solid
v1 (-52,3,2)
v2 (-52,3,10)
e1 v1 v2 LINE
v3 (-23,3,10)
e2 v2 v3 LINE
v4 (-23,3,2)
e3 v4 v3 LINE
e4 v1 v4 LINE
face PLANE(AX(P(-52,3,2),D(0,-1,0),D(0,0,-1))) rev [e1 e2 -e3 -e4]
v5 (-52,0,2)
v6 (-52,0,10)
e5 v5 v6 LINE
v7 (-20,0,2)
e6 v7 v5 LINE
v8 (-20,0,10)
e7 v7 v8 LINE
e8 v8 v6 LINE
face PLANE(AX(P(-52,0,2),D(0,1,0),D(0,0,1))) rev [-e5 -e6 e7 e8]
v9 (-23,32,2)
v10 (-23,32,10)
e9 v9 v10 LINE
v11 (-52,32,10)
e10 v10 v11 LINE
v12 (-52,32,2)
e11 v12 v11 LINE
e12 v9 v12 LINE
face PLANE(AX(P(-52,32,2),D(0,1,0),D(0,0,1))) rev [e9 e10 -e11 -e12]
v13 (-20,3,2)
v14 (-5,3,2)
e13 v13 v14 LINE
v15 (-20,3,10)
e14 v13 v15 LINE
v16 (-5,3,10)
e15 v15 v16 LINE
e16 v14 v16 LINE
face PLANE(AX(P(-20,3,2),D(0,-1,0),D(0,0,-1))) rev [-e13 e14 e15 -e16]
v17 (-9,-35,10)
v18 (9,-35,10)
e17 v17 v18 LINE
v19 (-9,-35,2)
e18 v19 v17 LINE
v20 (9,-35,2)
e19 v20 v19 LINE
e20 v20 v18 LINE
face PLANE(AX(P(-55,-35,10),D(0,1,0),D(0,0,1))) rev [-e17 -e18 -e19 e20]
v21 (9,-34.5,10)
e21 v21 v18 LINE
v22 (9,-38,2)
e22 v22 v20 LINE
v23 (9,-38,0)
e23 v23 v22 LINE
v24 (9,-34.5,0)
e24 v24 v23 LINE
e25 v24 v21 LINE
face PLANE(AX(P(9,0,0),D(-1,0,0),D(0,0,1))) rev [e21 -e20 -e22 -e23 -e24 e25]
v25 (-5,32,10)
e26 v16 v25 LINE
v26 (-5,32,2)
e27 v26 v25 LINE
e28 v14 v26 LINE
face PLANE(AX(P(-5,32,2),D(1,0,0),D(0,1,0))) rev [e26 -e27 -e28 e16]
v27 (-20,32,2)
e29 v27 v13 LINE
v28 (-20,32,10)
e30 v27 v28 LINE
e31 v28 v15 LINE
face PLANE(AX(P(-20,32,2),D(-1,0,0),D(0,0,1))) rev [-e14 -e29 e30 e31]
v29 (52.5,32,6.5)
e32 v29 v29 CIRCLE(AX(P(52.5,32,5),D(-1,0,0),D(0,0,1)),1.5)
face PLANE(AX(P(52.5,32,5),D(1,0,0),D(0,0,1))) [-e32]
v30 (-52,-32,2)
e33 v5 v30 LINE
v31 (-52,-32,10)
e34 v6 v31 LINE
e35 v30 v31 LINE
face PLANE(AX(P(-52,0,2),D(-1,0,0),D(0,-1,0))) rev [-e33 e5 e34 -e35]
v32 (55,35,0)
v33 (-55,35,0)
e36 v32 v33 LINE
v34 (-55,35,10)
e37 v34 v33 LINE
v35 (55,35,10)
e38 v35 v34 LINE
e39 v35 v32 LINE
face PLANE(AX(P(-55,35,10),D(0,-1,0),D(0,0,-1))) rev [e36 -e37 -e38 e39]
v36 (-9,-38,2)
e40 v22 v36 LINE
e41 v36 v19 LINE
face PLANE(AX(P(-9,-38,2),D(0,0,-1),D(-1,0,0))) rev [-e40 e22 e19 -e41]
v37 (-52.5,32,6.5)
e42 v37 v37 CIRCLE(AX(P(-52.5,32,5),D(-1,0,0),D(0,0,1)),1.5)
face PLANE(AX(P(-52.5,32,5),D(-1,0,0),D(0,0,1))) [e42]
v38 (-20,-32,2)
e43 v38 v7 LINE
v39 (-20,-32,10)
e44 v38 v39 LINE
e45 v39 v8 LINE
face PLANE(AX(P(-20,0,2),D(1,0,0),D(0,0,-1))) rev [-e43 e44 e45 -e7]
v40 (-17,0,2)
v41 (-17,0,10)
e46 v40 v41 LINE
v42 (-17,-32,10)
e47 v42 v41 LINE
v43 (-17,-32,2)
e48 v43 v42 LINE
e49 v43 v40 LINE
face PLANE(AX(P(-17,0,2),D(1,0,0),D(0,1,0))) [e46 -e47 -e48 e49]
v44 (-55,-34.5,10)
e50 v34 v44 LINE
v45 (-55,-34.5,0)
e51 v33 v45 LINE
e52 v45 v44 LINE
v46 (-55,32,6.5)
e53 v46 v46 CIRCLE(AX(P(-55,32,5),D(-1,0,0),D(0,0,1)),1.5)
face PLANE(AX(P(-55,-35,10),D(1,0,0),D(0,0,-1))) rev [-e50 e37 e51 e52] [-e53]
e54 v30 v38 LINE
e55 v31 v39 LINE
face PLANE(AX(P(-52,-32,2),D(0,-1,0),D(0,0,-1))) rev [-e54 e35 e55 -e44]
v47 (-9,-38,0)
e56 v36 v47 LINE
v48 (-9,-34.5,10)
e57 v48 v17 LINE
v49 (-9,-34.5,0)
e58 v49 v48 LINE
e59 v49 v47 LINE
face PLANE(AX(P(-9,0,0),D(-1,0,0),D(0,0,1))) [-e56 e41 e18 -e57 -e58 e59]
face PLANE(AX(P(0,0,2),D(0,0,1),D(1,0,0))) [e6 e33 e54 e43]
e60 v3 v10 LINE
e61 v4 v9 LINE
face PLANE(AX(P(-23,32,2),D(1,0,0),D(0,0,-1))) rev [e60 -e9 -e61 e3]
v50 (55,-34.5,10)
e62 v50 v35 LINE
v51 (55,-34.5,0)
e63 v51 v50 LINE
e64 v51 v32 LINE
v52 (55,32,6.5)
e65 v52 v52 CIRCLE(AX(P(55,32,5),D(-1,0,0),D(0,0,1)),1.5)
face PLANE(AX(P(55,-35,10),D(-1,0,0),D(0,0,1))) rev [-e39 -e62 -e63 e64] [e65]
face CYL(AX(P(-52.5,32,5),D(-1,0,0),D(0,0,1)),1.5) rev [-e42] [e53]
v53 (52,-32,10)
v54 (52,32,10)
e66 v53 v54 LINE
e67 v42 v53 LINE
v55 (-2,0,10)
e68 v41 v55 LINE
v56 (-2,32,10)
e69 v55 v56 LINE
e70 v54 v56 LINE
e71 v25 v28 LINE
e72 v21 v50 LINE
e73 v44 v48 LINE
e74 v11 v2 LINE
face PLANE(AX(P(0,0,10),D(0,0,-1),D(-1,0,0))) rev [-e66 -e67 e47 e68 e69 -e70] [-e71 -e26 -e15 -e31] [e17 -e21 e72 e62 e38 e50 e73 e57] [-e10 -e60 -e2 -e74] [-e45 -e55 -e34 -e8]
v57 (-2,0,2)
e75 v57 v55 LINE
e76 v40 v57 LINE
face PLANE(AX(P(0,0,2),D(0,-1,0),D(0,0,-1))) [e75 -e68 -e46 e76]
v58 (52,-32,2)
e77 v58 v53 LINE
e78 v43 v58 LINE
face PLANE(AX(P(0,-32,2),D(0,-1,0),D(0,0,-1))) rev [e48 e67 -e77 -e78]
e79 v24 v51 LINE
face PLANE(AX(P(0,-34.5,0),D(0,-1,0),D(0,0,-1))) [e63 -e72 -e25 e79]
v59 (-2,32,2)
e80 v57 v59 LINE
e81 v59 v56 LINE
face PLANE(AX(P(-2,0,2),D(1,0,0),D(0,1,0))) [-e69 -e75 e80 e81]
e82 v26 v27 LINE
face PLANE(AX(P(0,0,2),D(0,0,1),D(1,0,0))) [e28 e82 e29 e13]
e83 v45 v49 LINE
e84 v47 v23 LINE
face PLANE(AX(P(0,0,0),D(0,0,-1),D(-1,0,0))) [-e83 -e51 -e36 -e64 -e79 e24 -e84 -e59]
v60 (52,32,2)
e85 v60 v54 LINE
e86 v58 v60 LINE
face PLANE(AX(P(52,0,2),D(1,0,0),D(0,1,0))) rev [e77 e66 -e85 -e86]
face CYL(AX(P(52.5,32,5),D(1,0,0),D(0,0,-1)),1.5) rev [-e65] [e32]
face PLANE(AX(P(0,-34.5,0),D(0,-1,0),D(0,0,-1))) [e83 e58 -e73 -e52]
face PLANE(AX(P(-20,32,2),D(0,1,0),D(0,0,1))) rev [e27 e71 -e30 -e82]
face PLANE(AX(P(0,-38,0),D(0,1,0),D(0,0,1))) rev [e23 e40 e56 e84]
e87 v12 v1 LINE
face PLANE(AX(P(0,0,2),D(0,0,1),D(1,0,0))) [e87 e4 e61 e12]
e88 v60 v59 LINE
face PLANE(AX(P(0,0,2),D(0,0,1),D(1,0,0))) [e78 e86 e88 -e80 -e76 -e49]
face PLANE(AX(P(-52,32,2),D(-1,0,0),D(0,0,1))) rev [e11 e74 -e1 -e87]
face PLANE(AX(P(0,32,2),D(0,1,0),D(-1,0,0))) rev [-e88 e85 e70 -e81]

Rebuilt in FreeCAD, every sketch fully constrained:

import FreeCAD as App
import Part
import Sketcher

V = App.Vector
Q = App.Units.Quantity


def add_polygon(sketch, points):
    """Adds a closed chain of lines whose ends are joined by coincident constraints."""
    first, n = sketch.GeometryCount, len(points)
    for a, b in zip(points, points[1:] + points[:1]):
        sketch.addGeometry(Part.LineSegment(App.Vector(*a, 0), App.Vector(*b, 0)), False)
    for i in range(n):
        sketch.addConstraint(Sketcher.Constraint("Coincident", first + i, 2, first + (i + 1) % n, 1))

doc = App.newDocument("Part")
body = doc.addObject("PartDesign::Body", "Body")

# Sketch on XY plane
sketch1 = doc.addObject("Sketcher::SketchObject", "Sketch")
body.addObject(sketch1)
sketch1.AttachmentSupport = (doc.XY_Plane, [""])
sketch1.MapMode = "FlatFace"
add_polygon(sketch1, [(-55, 35), (-55, -35), (55, -35), (55, 35)])  # lines 0-3
sketch1.addConstraint([
    Sketcher.Constraint("Vertical", 0),
    Sketcher.Constraint("Horizontal", 1),
    Sketcher.Constraint("Vertical", 2),
    Sketcher.Constraint("Horizontal", 3),
    Sketcher.Constraint("Symmetric", 0, 2, 2, 2, -1, 1),
    Sketcher.Constraint("DistanceX", 1, 1, 1, 2, Q("110 mm")),
    Sketcher.Constraint("DistanceY", 0, 2, 0, 1, Q("70 mm")),
])
pad1 = doc.addObject("PartDesign::Pad", "Pad")
body.addObject(pad1)
pad1.Profile = sketch1
pad1.Length = 10

# Sketch on XY plane
sketch2 = doc.addObject("Sketcher::SketchObject", "Sketch001")
body.addObject(sketch2)
sketch2.AttachmentSupport = (doc.XY_Plane, [""])
sketch2.MapMode = "FlatFace"
sketch2.AttachmentOffset = App.Placement(V(0, 0, 10), App.Rotation())
add_polygon(sketch2, [(-52, 32), (-52, 3), (-23, 3), (-23, 32)])  # lines 0-3
add_polygon(sketch2, [(-52, 0), (-52, -32), (-20, -32), (-20, 0)])  # lines 4-7
add_polygon(sketch2, [(-20, 32), (-20, 3), (-5, 3), (-5, 32)])  # lines 8-11
sketch2.addConstraint([
    Sketcher.Constraint("Vertical", 0),
    Sketcher.Constraint("Horizontal", 1),
    Sketcher.Constraint("Vertical", 2),
    Sketcher.Constraint("Horizontal", 3),
    Sketcher.Constraint("Vertical", 4),
    Sketcher.Constraint("Horizontal", 5),
    Sketcher.Constraint("Vertical", 6),
    Sketcher.Constraint("Horizontal", 7),
    Sketcher.Constraint("Vertical", 8),
    Sketcher.Constraint("Horizontal", 9),
    Sketcher.Constraint("Vertical", 10),
    Sketcher.Constraint("Horizontal", 11),
    Sketcher.Constraint("Symmetric", 3, 2, 4, 2, -1),
    Sketcher.Constraint("Symmetric", 5, 2, 11, 2, -1),
    Sketcher.Constraint("PointOnObject", 6, 2, -1),
    Sketcher.Constraint("Horizontal", 1, 2, 8, 2),
    Sketcher.Constraint("Equal", 3, 0),
    Sketcher.Constraint("Equal", 7, 4),
    Sketcher.Constraint("DistanceX", 1, 1, 1, 2, Q("29 mm")),
    Sketcher.Constraint("DistanceX", 5, 1, 5, 2, Q("32 mm")),
    Sketcher.Constraint("DistanceX", 9, 1, 9, 2, Q("15 mm")),
    Sketcher.Constraint("DistanceX", 0, 2, -1, 1, Q("52 mm")),
])
pocket1 = doc.addObject("PartDesign::Pocket", "Pocket")
body.addObject(pocket1)
pocket1.Profile = sketch2
pocket1.Length = 8

# Sketch on XY plane
sketch3 = doc.addObject("Sketcher::SketchObject", "Sketch002")
body.addObject(sketch3)
sketch3.AttachmentSupport = (doc.XY_Plane, [""])
sketch3.MapMode = "FlatFace"
sketch3.AttachmentOffset = App.Placement(V(0, 0, 10), App.Rotation())
add_polygon(sketch3, [(-17, 0), (-17, -32), (52, -32), (52, 32), (-2, 32), (-2, 0)])  # lines 0-5
sketch3.addConstraint([
    Sketcher.Constraint("Vertical", 0),
    Sketcher.Constraint("Horizontal", 1),
    Sketcher.Constraint("Vertical", 2),
    Sketcher.Constraint("Horizontal", 3),
    Sketcher.Constraint("Vertical", 4),
    Sketcher.Constraint("Horizontal", 5),
    Sketcher.Constraint("PointOnObject", 4, 2, -1),
    Sketcher.Constraint("Equal", 0, 4),
    Sketcher.Constraint("DistanceX", 1, 1, 1, 2, Q("69 mm")),
    Sketcher.Constraint("DistanceX", 3, 2, 3, 1, Q("54 mm")),
    Sketcher.Constraint("DistanceY", 0, 2, 0, 1, Q("32 mm")),
    Sketcher.Constraint("DistanceX", 0, 2, -1, 1, Q("17 mm")),
])
pocket2 = doc.addObject("PartDesign::Pocket", "Pocket001")
body.addObject(pocket2)
pocket2.Profile = sketch3
pocket2.Length = 8

# Sketch on YZ plane
sketch4 = doc.addObject("Sketcher::SketchObject", "Sketch003")
body.addObject(sketch4)
sketch4.AttachmentSupport = (doc.YZ_Plane, [""])
sketch4.MapMode = "FlatFace"
sketch4.AttachmentOffset = App.Placement(V(0, 0, -55), App.Rotation())
sketch4.addGeometry(Part.Circle(V(32, 5, 0), V(0, 0, 1), 1.5), False)
sketch4.addConstraint([
    Sketcher.Constraint("Diameter", 0, Q("3 mm")),
    Sketcher.Constraint("DistanceX", -1, 1, 0, 3, Q("32 mm")),
    Sketcher.Constraint("DistanceY", -1, 1, 0, 3, Q("5 mm")),
])
pocket3 = doc.addObject("PartDesign::Pocket", "Pocket002")
body.addObject(pocket3)
pocket3.Profile = sketch4
pocket3.Length = 2.5
pocket3.Reversed = True
doc.recompute()

mirrored = doc.addObject("PartDesign::Mirrored", "Mirrored")
body.addObject(mirrored)
mirrored.Originals = [pocket3]
mirrored.MirrorPlane = (doc.YZ_Plane, [""])
body.Tip = mirrored

# Sketch on XY plane
sketch5 = doc.addObject("Sketcher::SketchObject", "Sketch004")
body.addObject(sketch5)
sketch5.AttachmentSupport = (doc.XY_Plane, [""])
sketch5.MapMode = "FlatFace"
sketch5.AttachmentOffset = App.Placement(V(0, 0, 10), App.Rotation())
add_polygon(sketch5, [(-55, -34.5), (-55, -35), (-9, -35), (-9, -34.5)])  # lines 0-3
add_polygon(sketch5, [(9, -34.5), (9, -35), (55, -35), (55, -34.5)])  # lines 4-7
sketch5.addConstraint([
    Sketcher.Constraint("Vertical", 0),
    Sketcher.Constraint("Horizontal", 1),
    Sketcher.Constraint("Vertical", 2),
    Sketcher.Constraint("Horizontal", 3),
    Sketcher.Constraint("Vertical", 4),
    Sketcher.Constraint("Horizontal", 5),
    Sketcher.Constraint("Vertical", 6),
    Sketcher.Constraint("Horizontal", 7),
    Sketcher.Constraint("Symmetric", 1, 2, 4, 2, -2),
    Sketcher.Constraint("Symmetric", 3, 2, 6, 2, -2),
    Sketcher.Constraint("DistanceX", 1, 1, 1, 2, Q("46 mm")),
    Sketcher.Constraint("DistanceY", 0, 2, 0, 1, Q("0.5 mm")),
    Sketcher.Constraint("DistanceX", 0, 2, -1, 1, Q("55 mm")),
    Sketcher.Constraint("DistanceY", 0, 2, -1, 1, Q("35 mm")),
])
pocket4 = doc.addObject("PartDesign::Pocket", "Pocket003")
body.addObject(pocket4)
pocket4.Profile = sketch5
pocket4.Type = "ThroughAll"

# Sketch on XZ plane
sketch6 = doc.addObject("Sketcher::SketchObject", "Sketch005")
body.addObject(sketch6)
sketch6.AttachmentSupport = (doc.XZ_Plane, [""])
sketch6.MapMode = "FlatFace"
sketch6.AttachmentOffset = App.Placement(V(0, 0, 35), App.Rotation())
add_polygon(sketch6, [(-9, 2), (-9, 0), (9, 0), (9, 2)])  # lines 0-3
sketch6.addConstraint([
    Sketcher.Constraint("Vertical", 0),
    Sketcher.Constraint("Horizontal", 1),
    Sketcher.Constraint("Vertical", 2),
    Sketcher.Constraint("Horizontal", 3),
    Sketcher.Constraint("Symmetric", 0, 2, 1, 2, -1, 1),
    Sketcher.Constraint("DistanceX", 1, 1, 1, 2, Q("18 mm")),
    Sketcher.Constraint("DistanceY", 0, 2, 0, 1, Q("2 mm")),
])
pad2 = doc.addObject("PartDesign::Pad", "Pad001")
body.addObject(pad2)
pad2.Profile = sketch6
pad2.Length = 3

doc.recompute()
